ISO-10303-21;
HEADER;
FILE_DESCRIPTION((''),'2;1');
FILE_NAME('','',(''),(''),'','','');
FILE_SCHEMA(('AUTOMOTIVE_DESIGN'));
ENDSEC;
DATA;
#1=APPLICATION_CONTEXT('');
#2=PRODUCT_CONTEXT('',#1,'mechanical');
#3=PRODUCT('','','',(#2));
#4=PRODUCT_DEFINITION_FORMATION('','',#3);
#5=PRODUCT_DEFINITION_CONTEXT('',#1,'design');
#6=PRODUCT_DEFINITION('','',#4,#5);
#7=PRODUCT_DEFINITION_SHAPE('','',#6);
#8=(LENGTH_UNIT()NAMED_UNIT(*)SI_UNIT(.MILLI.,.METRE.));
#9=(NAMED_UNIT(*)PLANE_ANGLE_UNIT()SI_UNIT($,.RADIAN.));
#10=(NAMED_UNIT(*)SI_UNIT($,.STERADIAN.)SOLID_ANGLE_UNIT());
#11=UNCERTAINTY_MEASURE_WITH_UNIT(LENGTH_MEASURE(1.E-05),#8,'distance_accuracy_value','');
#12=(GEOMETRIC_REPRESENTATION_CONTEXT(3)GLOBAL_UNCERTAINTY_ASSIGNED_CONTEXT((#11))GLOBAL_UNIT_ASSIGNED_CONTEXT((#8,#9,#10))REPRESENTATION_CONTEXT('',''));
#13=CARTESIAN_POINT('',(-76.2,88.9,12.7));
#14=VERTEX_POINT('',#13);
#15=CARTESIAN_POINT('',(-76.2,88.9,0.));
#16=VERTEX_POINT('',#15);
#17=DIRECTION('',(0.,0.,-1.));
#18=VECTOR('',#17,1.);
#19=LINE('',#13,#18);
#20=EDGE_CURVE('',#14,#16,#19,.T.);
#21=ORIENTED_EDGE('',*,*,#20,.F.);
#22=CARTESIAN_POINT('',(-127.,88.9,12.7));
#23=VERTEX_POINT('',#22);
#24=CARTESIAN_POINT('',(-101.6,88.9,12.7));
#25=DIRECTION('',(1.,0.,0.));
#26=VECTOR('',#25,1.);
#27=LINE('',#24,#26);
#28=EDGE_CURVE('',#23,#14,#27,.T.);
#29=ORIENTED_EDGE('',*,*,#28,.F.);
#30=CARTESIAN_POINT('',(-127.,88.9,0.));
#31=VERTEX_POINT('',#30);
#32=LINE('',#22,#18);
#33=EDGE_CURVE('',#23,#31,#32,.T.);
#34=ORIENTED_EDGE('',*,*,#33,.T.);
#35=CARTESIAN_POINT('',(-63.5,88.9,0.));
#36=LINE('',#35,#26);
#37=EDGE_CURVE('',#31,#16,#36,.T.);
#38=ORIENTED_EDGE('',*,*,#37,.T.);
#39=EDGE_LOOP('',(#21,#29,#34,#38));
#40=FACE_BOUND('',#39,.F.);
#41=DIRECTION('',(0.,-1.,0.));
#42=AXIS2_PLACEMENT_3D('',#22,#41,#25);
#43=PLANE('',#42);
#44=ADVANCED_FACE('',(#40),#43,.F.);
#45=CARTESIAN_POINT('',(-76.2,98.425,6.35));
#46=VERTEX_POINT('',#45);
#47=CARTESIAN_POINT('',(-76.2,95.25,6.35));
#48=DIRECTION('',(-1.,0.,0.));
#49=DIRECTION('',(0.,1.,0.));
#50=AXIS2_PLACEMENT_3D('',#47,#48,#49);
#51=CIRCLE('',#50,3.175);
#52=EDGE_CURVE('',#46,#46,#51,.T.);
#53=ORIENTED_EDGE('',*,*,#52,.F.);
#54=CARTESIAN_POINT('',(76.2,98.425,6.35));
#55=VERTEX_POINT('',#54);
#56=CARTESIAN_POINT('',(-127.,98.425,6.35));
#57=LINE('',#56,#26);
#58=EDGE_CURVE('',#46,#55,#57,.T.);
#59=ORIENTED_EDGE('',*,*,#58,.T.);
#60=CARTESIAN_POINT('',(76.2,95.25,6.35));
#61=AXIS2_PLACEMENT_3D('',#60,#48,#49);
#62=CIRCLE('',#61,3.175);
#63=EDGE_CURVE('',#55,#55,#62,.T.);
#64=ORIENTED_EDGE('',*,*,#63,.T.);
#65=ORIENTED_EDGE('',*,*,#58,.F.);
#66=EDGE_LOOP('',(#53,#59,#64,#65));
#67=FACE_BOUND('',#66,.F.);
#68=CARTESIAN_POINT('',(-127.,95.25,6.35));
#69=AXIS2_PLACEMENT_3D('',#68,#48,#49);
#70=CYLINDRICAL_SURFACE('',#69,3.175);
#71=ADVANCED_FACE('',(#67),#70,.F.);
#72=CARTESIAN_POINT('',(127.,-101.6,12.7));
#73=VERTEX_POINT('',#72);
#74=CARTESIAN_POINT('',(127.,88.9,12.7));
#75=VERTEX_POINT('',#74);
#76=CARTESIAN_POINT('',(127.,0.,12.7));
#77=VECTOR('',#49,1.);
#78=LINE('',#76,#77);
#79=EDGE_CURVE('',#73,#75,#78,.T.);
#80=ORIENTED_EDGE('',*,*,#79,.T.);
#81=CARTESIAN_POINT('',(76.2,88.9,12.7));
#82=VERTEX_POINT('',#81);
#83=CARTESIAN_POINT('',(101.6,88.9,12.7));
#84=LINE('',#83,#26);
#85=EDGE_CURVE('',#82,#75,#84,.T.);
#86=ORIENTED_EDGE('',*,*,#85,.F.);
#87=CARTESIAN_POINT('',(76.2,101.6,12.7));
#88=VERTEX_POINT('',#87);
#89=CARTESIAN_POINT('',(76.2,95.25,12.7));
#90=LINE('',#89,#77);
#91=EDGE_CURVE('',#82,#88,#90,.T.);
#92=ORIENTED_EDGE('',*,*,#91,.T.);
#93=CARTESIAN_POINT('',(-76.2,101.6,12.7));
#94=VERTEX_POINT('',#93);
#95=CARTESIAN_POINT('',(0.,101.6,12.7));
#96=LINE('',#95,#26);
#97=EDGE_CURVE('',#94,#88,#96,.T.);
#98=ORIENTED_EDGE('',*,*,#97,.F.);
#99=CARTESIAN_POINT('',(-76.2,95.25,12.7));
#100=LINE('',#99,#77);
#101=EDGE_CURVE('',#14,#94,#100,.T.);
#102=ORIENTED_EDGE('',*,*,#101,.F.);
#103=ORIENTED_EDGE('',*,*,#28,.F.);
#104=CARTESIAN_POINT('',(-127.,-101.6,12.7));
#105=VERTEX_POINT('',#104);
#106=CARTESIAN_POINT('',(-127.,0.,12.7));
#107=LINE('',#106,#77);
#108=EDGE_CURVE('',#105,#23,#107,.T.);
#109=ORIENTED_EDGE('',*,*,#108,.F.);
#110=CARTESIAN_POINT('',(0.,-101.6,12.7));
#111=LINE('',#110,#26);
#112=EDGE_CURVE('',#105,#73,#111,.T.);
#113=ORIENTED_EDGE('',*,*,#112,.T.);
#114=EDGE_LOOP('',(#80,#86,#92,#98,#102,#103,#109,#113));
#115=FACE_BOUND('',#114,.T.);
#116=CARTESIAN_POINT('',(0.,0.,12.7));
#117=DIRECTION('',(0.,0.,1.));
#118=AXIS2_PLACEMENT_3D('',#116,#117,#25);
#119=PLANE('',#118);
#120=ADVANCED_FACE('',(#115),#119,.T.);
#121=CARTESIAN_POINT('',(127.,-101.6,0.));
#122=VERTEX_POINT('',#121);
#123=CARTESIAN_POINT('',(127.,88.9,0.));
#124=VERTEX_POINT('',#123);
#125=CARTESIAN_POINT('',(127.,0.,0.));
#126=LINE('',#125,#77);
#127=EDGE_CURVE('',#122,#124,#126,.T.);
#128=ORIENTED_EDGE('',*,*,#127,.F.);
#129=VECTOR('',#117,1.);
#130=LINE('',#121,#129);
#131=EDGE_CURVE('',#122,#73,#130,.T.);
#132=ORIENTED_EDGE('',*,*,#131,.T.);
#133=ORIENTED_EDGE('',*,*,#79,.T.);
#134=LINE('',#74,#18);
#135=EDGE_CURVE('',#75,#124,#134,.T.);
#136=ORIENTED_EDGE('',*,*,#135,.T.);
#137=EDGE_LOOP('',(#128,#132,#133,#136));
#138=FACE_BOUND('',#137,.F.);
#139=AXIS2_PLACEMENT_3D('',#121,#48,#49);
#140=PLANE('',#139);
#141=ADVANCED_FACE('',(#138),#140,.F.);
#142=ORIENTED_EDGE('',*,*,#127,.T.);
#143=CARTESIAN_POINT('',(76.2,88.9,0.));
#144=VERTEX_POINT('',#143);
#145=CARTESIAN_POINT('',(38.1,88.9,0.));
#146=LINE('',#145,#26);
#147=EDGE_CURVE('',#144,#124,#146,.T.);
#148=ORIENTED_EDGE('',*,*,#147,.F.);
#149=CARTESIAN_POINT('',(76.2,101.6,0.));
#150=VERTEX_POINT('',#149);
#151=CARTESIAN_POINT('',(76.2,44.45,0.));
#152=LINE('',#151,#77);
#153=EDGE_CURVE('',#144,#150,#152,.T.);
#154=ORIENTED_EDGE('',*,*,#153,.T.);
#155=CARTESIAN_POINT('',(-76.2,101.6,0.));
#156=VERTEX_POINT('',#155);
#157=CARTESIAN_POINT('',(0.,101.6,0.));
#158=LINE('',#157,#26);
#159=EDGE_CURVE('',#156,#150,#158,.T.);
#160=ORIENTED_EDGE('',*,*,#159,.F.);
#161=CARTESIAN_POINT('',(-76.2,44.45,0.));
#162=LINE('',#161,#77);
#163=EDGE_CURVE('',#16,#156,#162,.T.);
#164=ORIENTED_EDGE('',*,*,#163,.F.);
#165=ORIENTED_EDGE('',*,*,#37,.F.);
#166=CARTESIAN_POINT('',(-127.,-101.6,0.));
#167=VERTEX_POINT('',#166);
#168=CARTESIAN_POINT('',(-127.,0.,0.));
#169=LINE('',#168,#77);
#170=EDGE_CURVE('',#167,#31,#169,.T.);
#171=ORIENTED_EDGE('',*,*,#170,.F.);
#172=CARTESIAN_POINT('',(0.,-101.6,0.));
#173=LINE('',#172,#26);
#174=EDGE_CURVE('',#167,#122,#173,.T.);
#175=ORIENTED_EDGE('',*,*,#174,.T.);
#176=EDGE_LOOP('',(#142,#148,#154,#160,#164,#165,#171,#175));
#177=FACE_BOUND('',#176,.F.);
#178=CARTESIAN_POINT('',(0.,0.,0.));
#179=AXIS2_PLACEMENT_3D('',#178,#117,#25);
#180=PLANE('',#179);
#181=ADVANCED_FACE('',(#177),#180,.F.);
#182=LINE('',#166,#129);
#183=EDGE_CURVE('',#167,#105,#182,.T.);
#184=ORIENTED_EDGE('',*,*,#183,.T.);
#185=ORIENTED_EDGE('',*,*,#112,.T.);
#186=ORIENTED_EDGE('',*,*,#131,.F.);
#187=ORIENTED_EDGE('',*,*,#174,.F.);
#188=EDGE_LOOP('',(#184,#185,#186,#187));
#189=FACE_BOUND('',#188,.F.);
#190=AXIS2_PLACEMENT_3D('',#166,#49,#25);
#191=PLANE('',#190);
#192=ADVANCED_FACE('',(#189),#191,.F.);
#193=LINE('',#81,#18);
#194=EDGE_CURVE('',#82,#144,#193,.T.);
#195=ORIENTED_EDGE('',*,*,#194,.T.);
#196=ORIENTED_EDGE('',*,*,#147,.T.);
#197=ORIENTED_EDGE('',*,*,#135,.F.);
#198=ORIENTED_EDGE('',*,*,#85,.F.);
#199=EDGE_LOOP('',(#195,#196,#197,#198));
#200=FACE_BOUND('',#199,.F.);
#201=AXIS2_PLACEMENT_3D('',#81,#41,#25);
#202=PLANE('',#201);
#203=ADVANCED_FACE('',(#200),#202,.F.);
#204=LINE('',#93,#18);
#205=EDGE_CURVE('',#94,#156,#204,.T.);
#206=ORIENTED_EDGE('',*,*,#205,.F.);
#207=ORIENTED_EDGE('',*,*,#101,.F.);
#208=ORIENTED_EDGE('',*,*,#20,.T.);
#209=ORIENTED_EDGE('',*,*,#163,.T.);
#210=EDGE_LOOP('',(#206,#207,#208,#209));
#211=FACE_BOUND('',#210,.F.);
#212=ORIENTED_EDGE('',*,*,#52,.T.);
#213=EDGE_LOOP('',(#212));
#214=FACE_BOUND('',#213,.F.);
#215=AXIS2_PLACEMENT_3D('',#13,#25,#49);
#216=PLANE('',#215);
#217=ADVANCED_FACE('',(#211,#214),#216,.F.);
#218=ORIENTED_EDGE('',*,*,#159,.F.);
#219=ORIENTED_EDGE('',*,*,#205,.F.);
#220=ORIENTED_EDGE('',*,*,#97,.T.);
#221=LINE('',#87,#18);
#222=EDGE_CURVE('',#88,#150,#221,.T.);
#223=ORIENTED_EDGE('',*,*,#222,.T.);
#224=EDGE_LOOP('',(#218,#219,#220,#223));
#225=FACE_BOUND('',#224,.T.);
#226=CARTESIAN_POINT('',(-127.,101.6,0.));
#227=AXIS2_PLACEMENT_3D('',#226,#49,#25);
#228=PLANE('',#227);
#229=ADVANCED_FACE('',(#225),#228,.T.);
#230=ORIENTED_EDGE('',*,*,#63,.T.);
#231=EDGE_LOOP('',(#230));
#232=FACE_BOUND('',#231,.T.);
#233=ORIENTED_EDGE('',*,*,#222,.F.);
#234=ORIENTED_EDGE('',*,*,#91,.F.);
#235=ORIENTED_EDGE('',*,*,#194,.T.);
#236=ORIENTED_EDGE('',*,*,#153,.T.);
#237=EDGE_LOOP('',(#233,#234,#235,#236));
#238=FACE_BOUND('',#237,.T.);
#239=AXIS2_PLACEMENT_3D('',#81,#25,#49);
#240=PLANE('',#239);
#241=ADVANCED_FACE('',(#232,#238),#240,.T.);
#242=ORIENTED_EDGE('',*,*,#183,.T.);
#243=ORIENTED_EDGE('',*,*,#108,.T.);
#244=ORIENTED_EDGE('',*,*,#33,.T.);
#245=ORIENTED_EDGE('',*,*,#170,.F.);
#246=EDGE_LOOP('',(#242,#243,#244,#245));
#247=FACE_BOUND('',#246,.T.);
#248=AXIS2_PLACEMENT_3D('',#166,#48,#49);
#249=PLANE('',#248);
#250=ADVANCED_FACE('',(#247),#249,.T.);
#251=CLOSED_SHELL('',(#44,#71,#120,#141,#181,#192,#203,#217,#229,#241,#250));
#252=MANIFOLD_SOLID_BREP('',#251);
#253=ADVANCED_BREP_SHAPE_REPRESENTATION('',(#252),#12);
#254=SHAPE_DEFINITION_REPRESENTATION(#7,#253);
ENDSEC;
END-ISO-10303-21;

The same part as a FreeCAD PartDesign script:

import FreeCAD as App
import Part
import Sketcher

V = App.Vector
Q = App.Units.Quantity


def add_polygon(sketch, points):
    """Adds a closed chain of lines whose ends are joined by coincident constraints."""
    first, n = sketch.GeometryCount, len(points)
    for a, b in zip(points, points[1:] + points[:1]):
        sketch.addGeometry(Part.LineSegment(App.Vector(*a, 0), App.Vector(*b, 0)), False)
    for i in range(n):
        sketch.addConstraint(Sketcher.Constraint("Coincident", first + i, 2, first + (i + 1) % n, 1))

doc = App.newDocument("Part")
body = doc.addObject("PartDesign::Body", "Body")

# Sketch on XY plane
sketch1 = body.newObject("Sketcher::SketchObject", "Sketch")
sketch1.AttachmentSupport = (doc.getObject("XY_Plane"), [""])
sketch1.MapMode = "FlatFace"
add_polygon(sketch1, [(-127, 101.6), (-127, -101.6), (127, -101.6), (127, 101.6)])  # lines 0-3
sketch1.addConstraint([
    Sketcher.Constraint("Vertical", 0),
    Sketcher.Constraint("Horizontal", 1),
    Sketcher.Constraint("Vertical", 2),
    Sketcher.Constraint("Horizontal", 3),
    Sketcher.Constraint("Symmetric", 0, 2, 2, 2, -1, 1),
    Sketcher.Constraint("DistanceX", 1, 1, 1, 2, Q("10 in")),
    Sketcher.Constraint("DistanceY", 0, 2, 0, 1, Q("8 in")),
])
pad1 = body.newObject("PartDesign::Pad", "Pad")
pad1.Profile = sketch1
pad1.Length = Q("0.5 in")

# Sketch on YZ plane
sketch2 = body.newObject("Sketcher::SketchObject", "Sketch001")
sketch2.AttachmentSupport = (doc.getObject("YZ_Plane"), [""])
sketch2.MapMode = "FlatFace"
sketch2.AttachmentOffset = App.Placement(V(0, 0, -5 * 25.4), App.Rotation())
sketch2.addGeometry(Part.Circle(V(95.25, 6.35, 0), V(0, 0, 1), 3.175), False)
sketch2.addConstraint([
    Sketcher.Constraint("Diameter", 0, Q("0.25 in")),
    Sketcher.Constraint("DistanceX", -1, 1, 0, 3, Q("3.75 in")),
    Sketcher.Constraint("DistanceY", -1, 1, 0, 3, Q("0.25 in")),
])
pocket1 = body.newObject("PartDesign::Pocket", "Pocket")
pocket1.Profile = sketch2
pocket1.Type = "ThroughAll"
pocket1.Reversed = True

# Sketch on XY plane
sketch3 = body.newObject("Sketcher::SketchObject", "Sketch002")
sketch3.AttachmentSupport = (doc.getObject("XY_Plane"), [""])
sketch3.MapMode = "FlatFace"
sketch3.AttachmentOffset = App.Placement(V(0, 0, 0.5 * 25.4), App.Rotation())
add_polygon(sketch3, [(-127, 101.6), (-127, 88.9), (-76.2, 88.9), (-76.2, 101.6)])  # lines 0-3
add_polygon(sketch3, [(76.2, 101.6), (76.2, 88.9), (127, 88.9), (127, 101.6)])  # lines 4-7
sketch3.addConstraint([
    Sketcher.Constraint("Vertical", 0),
    Sketcher.Constraint("Horizontal", 1),
    Sketcher.Constraint("Vertical", 2),
    Sketcher.Constraint("Horizontal", 3),
    Sketcher.Constraint("Vertical", 4),
    Sketcher.Constraint("Horizontal", 5),
    Sketcher.Constraint("Vertical", 6),
    Sketcher.Constraint("Horizontal", 7),
    Sketcher.Constraint("Symmetric", 1, 2, 4, 2, -2),
    Sketcher.Constraint("Symmetric", 3, 2, 6, 2, -2),
    Sketcher.Constraint("DistanceX", 1, 1, 1, 2, Q("2 in")),
    Sketcher.Constraint("DistanceY", 0, 2, 0, 1, Q("0.5 in")),
    Sketcher.Constraint("DistanceX", 0, 2, -1, 1, Q("5 in")),
    Sketcher.Constraint("DistanceY", -1, 1, 2, 2, Q("4 in")),
])
pocket2 = body.newObject("PartDesign::Pocket", "Pocket001")
pocket2.Profile = sketch3
pocket2.Type = "ThroughAll"

doc.recompute()
